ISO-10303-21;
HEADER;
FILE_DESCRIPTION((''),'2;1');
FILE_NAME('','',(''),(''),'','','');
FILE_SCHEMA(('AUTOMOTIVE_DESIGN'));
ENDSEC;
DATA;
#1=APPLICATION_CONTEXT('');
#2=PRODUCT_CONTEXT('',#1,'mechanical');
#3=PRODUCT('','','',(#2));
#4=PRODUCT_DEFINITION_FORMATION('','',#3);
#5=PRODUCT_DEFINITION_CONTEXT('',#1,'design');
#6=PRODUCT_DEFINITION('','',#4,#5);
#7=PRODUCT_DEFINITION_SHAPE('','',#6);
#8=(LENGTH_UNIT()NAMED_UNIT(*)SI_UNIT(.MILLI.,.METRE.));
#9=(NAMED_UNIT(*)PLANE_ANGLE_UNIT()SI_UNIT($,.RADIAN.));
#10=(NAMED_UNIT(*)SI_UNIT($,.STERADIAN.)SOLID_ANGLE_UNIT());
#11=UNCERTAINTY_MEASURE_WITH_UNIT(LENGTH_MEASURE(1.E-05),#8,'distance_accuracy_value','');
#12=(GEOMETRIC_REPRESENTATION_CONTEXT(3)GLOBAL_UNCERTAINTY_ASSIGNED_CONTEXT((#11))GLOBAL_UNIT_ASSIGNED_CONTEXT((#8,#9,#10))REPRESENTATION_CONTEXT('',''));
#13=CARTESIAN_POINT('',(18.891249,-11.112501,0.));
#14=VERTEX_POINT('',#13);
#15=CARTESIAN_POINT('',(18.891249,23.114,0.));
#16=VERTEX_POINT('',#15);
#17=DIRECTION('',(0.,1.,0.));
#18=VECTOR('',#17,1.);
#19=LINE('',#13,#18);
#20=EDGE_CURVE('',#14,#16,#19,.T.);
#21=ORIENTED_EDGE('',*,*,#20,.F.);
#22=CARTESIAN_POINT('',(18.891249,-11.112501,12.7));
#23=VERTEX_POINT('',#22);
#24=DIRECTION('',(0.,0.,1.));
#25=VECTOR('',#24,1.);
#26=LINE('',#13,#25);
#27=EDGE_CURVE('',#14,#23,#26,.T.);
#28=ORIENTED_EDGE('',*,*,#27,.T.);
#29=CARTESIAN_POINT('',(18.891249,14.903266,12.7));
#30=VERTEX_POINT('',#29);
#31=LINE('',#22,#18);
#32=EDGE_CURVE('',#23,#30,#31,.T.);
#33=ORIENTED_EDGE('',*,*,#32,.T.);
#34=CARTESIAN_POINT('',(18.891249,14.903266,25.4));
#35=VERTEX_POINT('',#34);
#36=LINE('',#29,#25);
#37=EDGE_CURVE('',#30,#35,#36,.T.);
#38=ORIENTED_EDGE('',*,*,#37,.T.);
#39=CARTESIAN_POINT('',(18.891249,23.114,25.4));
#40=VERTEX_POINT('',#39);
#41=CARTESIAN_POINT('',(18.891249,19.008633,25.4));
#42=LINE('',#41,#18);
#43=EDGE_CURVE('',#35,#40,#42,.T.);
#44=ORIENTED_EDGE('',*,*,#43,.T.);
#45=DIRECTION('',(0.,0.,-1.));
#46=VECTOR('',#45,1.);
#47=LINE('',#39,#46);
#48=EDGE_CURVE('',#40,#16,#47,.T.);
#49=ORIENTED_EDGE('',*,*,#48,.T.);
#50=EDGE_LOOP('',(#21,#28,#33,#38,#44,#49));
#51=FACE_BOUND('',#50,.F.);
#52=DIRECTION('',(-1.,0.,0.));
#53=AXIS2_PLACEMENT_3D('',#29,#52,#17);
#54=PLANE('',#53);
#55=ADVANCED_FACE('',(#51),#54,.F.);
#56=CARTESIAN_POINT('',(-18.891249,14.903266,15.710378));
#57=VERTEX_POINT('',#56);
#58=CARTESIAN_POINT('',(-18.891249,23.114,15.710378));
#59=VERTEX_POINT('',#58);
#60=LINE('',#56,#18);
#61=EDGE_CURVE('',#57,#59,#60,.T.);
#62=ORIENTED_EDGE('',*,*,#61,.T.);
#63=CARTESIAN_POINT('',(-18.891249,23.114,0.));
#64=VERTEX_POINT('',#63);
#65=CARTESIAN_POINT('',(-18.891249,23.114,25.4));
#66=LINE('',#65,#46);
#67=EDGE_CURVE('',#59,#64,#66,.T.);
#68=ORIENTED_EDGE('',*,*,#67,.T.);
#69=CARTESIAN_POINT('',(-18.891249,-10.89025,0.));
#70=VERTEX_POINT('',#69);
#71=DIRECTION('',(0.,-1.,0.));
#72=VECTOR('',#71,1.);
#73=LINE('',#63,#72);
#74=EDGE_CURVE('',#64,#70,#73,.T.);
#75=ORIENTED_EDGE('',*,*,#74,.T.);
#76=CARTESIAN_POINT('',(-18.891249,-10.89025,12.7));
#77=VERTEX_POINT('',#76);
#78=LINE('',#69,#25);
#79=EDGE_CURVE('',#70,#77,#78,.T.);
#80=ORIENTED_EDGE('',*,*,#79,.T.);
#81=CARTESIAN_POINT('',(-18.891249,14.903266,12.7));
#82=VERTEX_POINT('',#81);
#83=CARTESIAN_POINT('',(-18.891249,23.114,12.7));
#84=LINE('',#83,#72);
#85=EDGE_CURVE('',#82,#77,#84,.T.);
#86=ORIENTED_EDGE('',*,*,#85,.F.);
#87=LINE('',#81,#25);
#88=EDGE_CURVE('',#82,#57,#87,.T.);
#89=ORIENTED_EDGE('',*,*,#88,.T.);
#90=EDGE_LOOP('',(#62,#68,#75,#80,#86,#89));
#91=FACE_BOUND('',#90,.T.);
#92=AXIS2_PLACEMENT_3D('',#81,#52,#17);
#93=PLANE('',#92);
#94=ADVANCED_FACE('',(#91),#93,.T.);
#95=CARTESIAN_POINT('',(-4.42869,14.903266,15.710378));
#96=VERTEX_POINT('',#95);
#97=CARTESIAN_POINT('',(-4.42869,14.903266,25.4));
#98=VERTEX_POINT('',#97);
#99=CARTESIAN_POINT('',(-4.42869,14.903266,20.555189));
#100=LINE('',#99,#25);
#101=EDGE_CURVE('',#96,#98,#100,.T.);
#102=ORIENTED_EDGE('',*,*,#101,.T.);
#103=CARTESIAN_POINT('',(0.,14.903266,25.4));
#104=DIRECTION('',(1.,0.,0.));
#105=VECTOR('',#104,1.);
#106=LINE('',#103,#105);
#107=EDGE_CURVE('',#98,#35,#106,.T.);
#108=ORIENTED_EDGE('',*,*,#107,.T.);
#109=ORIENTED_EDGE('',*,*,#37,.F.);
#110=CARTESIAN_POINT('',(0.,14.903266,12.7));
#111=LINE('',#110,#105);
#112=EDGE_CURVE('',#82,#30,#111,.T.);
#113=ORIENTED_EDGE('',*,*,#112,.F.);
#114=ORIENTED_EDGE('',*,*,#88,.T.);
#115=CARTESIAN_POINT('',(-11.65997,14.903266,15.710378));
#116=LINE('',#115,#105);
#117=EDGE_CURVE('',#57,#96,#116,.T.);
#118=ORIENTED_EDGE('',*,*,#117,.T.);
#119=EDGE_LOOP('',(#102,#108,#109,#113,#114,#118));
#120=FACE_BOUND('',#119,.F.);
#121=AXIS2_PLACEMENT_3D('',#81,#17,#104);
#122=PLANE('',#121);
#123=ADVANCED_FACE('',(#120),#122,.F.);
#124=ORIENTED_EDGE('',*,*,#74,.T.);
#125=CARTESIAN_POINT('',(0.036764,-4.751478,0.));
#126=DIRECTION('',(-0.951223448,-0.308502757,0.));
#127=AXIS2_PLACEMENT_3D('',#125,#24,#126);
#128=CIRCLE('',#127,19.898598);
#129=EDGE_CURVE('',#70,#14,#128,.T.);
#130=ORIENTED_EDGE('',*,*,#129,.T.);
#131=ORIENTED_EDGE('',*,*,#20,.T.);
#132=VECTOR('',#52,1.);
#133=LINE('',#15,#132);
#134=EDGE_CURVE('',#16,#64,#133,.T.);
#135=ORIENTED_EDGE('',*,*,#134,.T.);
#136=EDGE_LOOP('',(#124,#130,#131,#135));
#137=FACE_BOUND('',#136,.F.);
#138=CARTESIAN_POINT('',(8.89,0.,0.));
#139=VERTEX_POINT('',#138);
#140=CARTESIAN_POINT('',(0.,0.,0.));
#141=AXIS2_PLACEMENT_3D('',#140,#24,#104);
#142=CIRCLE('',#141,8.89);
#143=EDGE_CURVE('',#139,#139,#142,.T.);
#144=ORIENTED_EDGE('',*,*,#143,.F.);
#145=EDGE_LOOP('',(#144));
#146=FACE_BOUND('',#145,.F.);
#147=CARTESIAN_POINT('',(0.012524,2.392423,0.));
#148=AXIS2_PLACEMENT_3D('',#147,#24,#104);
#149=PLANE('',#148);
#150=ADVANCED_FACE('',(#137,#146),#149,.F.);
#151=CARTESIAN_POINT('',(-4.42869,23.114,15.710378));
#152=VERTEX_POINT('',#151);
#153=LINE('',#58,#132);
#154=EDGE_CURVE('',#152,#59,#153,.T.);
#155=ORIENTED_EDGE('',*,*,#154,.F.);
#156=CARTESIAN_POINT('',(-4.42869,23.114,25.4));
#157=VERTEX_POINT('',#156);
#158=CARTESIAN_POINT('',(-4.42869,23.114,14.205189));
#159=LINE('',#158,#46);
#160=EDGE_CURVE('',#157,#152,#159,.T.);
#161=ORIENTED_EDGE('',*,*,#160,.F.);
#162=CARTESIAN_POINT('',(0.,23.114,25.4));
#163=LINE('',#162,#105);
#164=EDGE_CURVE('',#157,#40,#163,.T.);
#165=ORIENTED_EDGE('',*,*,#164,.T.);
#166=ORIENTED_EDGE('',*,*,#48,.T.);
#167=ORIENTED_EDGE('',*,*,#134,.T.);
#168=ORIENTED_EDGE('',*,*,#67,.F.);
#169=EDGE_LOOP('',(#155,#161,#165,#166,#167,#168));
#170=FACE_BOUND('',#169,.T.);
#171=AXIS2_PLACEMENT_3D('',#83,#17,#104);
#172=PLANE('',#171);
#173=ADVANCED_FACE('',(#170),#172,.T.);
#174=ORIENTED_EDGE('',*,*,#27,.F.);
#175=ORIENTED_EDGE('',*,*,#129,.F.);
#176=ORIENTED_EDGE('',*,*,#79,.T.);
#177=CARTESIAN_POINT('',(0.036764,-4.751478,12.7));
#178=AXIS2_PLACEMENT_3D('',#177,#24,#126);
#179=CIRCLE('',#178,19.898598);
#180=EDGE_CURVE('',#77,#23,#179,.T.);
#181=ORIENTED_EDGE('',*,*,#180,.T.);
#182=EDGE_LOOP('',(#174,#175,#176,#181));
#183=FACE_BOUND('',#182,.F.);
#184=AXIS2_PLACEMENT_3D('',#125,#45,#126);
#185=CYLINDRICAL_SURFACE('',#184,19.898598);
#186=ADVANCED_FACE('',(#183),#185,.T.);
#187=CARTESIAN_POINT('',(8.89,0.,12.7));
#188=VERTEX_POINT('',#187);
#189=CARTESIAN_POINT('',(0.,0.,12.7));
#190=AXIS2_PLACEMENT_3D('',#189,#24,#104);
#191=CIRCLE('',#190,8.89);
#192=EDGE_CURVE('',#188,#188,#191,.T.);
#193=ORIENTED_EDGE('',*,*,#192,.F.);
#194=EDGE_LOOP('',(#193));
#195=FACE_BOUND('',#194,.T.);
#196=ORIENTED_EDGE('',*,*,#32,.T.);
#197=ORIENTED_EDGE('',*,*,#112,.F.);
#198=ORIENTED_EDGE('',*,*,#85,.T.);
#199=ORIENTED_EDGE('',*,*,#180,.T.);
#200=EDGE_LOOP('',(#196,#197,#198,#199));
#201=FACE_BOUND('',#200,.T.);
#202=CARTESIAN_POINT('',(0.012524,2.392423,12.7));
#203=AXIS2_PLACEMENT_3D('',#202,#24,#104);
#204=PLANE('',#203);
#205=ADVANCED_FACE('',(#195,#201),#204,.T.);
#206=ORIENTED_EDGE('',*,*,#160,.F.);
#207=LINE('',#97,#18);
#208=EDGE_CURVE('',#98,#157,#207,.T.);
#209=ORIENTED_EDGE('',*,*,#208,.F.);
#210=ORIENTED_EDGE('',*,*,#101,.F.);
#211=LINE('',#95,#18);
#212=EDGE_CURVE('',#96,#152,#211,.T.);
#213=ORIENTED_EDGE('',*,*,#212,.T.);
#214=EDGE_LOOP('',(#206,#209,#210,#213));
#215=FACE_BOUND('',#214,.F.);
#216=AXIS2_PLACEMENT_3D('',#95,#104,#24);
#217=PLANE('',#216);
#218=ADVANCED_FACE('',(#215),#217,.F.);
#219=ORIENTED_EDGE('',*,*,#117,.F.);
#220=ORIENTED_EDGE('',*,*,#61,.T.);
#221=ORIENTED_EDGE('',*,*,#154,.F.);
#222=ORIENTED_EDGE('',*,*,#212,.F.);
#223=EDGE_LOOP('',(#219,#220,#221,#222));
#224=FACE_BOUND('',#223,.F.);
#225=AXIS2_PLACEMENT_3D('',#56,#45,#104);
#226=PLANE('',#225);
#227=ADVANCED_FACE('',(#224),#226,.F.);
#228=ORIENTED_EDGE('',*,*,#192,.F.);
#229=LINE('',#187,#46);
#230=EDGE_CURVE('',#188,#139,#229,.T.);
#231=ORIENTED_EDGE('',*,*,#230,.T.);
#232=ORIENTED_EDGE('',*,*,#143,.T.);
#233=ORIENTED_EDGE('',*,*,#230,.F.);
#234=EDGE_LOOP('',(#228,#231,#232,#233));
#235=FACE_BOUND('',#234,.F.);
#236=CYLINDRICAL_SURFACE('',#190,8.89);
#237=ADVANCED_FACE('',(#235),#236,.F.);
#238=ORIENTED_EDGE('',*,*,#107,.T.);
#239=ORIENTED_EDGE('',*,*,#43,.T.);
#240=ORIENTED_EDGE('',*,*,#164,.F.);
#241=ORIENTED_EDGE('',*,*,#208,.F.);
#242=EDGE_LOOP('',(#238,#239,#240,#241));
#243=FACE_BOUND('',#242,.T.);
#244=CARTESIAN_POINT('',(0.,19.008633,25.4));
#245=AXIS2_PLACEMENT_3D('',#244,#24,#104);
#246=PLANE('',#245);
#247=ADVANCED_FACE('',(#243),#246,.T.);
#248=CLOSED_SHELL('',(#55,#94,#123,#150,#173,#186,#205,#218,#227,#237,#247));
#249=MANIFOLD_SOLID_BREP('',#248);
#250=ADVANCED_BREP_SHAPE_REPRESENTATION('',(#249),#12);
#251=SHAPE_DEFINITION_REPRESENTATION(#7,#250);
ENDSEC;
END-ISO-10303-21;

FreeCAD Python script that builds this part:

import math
import FreeCAD as App
import Part
import Sketcher

V = App.Vector
Q = App.Units.Quantity


def add_polygon(sketch, points):
    """Adds a closed chain of lines whose ends are joined by coincident constraints."""
    first, n = sketch.GeometryCount, len(points)
    for a, b in zip(points, points[1:] + points[:1]):
        sketch.addGeometry(Part.LineSegment(App.Vector(*a, 0), App.Vector(*b, 0)), False)
    for i in range(n):
        sketch.addConstraint(Sketcher.Constraint("Coincident", first + i, 2, first + (i + 1) % n, 1))

doc = App.newDocument("Part")
body = doc.addObject("PartDesign::Body", "Body")

# Sketch on XY plane
sketch1 = body.newObject("Sketcher::SketchObject", "Sketch")
sketch1.AttachmentSupport = (doc.getObject("XY_Plane"), [""])
sketch1.MapMode = "FlatFace"
sketch1.addGeometry([
    Part.LineSegment(V(18.891249, -11.112501, 0), V(18.891249, 23.114, 0)),
    Part.LineSegment(V(18.891249, 23.114, 0), V(-18.891249, 23.114, 0)),
    Part.LineSegment(V(-18.891249, 23.114, 0), V(-18.891249, -10.89025, 0)),
    Part.ArcOfCircle(Part.Circle(V(0.036764, -4.751478, 0), V(0, 0, 1), 19.898598), math.radians(-162.030977), math.radians(-18.643086)),
], False)
sketch1.addConstraint([
    Sketcher.Constraint("Coincident", 0, 2, 1, 1),
    Sketcher.Constraint("Coincident", 1, 2, 2, 1),
    Sketcher.Constraint("Coincident", 2, 2, 3, 1),
    Sketcher.Constraint("Coincident", 3, 2, 0, 1),
    Sketcher.Constraint("Vertical", 0),
    Sketcher.Constraint("Horizontal", 1),
    Sketcher.Constraint("Vertical", 2),
    Sketcher.Constraint("DistanceY", -1, 1, 0, 2, Q("0.91 in")),
    Sketcher.Constraint("Radius", 3, Q("19.898598 mm")),
    Sketcher.Constraint("DistanceX", 1, 2, 1, 1, Q("1.4874999 in")),
    Sketcher.Constraint("DistanceY", 0, 1, 0, 2, Q("1.3475 in")),
    Sketcher.Constraint("DistanceY", 2, 2, 2, 1, Q("34.00425 mm")),
    Sketcher.Constraint("DistanceX", -1, 1, 0, 2, Q("18.891249 mm")),
])
pad1 = body.newObject("PartDesign::Pad", "Pad")
pad1.Profile = sketch1
pad1.Length = Q("0.5 in")

# Sketch on XY plane
sketch2 = body.newObject("Sketcher::SketchObject", "Sketch001")
sketch2.AttachmentSupport = (doc.getObject("XY_Plane"), [""])
sketch2.MapMode = "FlatFace"
sketch2.AttachmentOffset = App.Placement(V(0, 0, 0.5 * 25.4), App.Rotation())
add_polygon(sketch2, [(-18.891249, 23.114), (-18.891249, 14.903266), (18.891249, 14.903266), (18.891249, 23.114)])  # lines 0-3
sketch2.addConstraint([
    Sketcher.Constraint("Vertical", 0),
    Sketcher.Constraint("Horizontal", 1),
    Sketcher.Constraint("Vertical", 2),
    Sketcher.Constraint("Horizontal", 3),
    Sketcher.Constraint("DistanceY", -1, 1, 2, 2, Q("0.91 in")),
    Sketcher.Constraint("DistanceX", 1, 1, 1, 2, Q("1.4874999 in")),
    Sketcher.Constraint("DistanceY", 0, 2, 0, 1, Q("8.210734 mm")),
    Sketcher.Constraint("DistanceX", 0, 2, -1, 1, Q("18.891249 mm")),
])
pad2 = body.newObject("PartDesign::Pad", "Pad001")
pad2.Profile = sketch2
pad2.Length = Q("0.5 in")

# Sketch on XZ plane
sketch3 = body.newObject("Sketcher::SketchObject", "Sketch002")
sketch3.AttachmentSupport = (doc.getObject("XZ_Plane"), [""])
sketch3.MapMode = "FlatFace"
sketch3.AttachmentOffset = App.Placement(V(0, 0, -14.903266), App.Rotation())
add_polygon(sketch3, [(-18.891249, 25.4), (-18.891249, 15.710378), (-4.42869, 15.710378), (-4.42869, 25.4)])  # lines 0-3
sketch3.addConstraint([
    Sketcher.Constraint("Vertical", 0),
    Sketcher.Constraint("Horizontal", 1),
    Sketcher.Constraint("Vertical", 2),
    Sketcher.Constraint("Horizontal", 3),
    Sketcher.Constraint("DistanceY", -1, 1, 2, 2, Q("1 in")),
    Sketcher.Constraint("DistanceX", 1, 1, 1, 2, Q("14.462559 mm")),
    Sketcher.Constraint("DistanceY", 0, 2, 0, 1, Q("9.689622 mm")),
    Sketcher.Constraint("DistanceX", 0, 2, -1, 1, Q("18.891249 mm")),
])
pocket1 = body.newObject("PartDesign::Pocket", "Pocket")
pocket1.Profile = sketch3
pocket1.Type = "ThroughAll"

# Sketch on XY plane
sketch4 = body.newObject("Sketcher::SketchObject", "Sketch003")
sketch4.AttachmentSupport = (doc.getObject("XY_Plane"), [""])
sketch4.MapMode = "FlatFace"
sketch4.AttachmentOffset = App.Placement(V(0, 0, 0.5 * 25.4), App.Rotation())
sketch4.addGeometry(Part.Circle(V(0, 0, 0), V(0, 0, 1), 8.89), False)
sketch4.addConstraint([
    Sketcher.Constraint("Coincident", 0, 3, -1, 1),
    Sketcher.Constraint("Diameter", 0, Q("0.7 in")),
])
pocket2 = body.newObject("PartDesign::Pocket", "Pocket001")
pocket2.Profile = sketch4
pocket2.Type = "ThroughAll"

doc.recompute()
